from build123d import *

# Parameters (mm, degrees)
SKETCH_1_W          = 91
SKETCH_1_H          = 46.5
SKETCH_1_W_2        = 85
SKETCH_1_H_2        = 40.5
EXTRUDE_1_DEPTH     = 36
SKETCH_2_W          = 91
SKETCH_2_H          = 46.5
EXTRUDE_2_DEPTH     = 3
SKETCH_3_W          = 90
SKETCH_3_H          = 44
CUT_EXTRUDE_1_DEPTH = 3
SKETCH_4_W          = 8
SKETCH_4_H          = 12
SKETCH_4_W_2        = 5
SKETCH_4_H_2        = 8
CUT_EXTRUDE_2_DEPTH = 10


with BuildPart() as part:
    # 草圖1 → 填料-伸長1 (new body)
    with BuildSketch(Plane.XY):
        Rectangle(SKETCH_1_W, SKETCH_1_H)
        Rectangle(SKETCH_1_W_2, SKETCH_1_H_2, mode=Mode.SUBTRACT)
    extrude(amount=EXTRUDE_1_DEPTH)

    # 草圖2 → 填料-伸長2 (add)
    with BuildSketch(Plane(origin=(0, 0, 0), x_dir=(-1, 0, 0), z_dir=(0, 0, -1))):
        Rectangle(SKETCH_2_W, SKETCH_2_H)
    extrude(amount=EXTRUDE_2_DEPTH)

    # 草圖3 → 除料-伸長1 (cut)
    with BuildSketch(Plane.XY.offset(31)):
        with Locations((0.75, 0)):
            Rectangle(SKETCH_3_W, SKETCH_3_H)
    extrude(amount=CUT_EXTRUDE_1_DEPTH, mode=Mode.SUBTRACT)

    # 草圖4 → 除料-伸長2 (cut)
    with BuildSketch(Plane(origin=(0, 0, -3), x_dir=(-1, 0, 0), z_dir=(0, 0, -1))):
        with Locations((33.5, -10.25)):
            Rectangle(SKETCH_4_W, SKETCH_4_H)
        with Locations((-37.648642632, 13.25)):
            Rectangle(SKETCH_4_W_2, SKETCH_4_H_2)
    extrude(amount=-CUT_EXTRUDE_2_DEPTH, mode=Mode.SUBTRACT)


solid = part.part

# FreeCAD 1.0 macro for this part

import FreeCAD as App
import Part
import Sketcher

V = App.Vector
Q = App.Units.Quantity

doc = App.newDocument("Part")
params = doc.addObject("Spreadsheet::Sheet", "Params")
for row, (alias, value) in enumerate([
    ("sketch1_width", "91 mm"),
    ("sketch1_width2", "85 mm"),
    ("sketch1_height", "46.5 mm"),
    ("sketch1_height2", "40.5 mm"),
    ("pad1_length", "36 mm"),
    ("sketch2_width", "91 mm"),
    ("sketch2_height", "46.5 mm"),
    ("pad2_length", "3 mm"),
    ("sketch3_width", "90 mm"),
    ("sketch3_height", "44 mm"),
    ("pocket1_length", "3 mm"),
    ("sketch4_width", "8 mm"),
    ("sketch4_width2", "5 mm"),
    ("sketch4_height", "12 mm"),
    ("pocket2_length", "10 mm"),
], start=1):
    params.set(f"A{row}", alias)
    params.set(f"B{row}", "=" + value)
    params.setAlias(f"B{row}", alias)

body = doc.addObject("PartDesign::Body", "Body")

# Sketch on XY plane
sketch1 = body.newObject("Sketcher::SketchObject", "Sketch")
sketch1.AttachmentSupport = (doc.getObject("XY_Plane"), [""])
sketch1.MapMode = "FlatFace"
sketch1.addGeometry([
    Part.LineSegment(V(-46, 23, 0), V(-46, -23, 0)),  # 0
    Part.LineSegment(V(-46, -23, 0), V(46, -23, 0)),  # 1
    Part.LineSegment(V(46, -23, 0), V(46, 23, 0)),  # 2
    Part.LineSegment(V(46, 23, 0), V(-46, 23, 0)),  # 3
    Part.LineSegment(V(42, -20, 0), V(-42, -20, 0)),  # 4
    Part.LineSegment(V(-42, -20, 0), V(-42, 20, 0)),  # 5
    Part.LineSegment(V(-42, 20, 0), V(42, 20, 0)),  # 6
    Part.LineSegment(V(42, 20, 0), V(42, -20, 0)),  # 7
], False)
sketch1.addConstraint([
    Sketcher.Constraint("Coincident", 0, 2, 1, 1),
    Sketcher.Constraint("Coincident", 1, 2, 2, 1),
    Sketcher.Constraint("Coincident", 2, 2, 3, 1),
    Sketcher.Constraint("Coincident", 3, 2, 0, 1),
    Sketcher.Constraint("Coincident", 4, 2, 5, 1),
    Sketcher.Constraint("Coincident", 5, 2, 6, 1),
    Sketcher.Constraint("Coincident", 6, 2, 7, 1),
    Sketcher.Constraint("Coincident", 7, 2, 4, 1),
    Sketcher.Constraint("Vertical", 0),
    Sketcher.Constraint("Horizontal", 1),
    Sketcher.Constraint("Vertical", 2),
    Sketcher.Constraint("Horizontal", 3),
    Sketcher.Constraint("Horizontal", 4),
    Sketcher.Constraint("Vertical", 5),
    Sketcher.Constraint("Horizontal", 6),
    Sketcher.Constraint("Vertical", 7),
    Sketcher.Constraint("Symmetric", 0, 2, 2, 2, -1, 1),
    Sketcher.Constraint("Symmetric", 4, 2, 6, 2, -1, 1),
    Sketcher.Constraint("DistanceX", 1, 1, 1, 2, Q("91 mm")),
    Sketcher.Constraint("DistanceX", 4, 2, 4, 1, Q("85 mm")),
    Sketcher.Constraint("DistanceY", 0, 2, 0, 1, Q("46.5 mm")),
    Sketcher.Constraint("DistanceY", 5, 1, 5, 2, Q("40.5 mm")),
])
sketch1.setExpression("Constraints[18]", "Params.sketch1_width")
sketch1.setExpression("Constraints[19]", "Params.sketch1_width2")
sketch1.setExpression("Constraints[20]", "Params.sketch1_height")
sketch1.setExpression("Constraints[21]", "Params.sketch1_height2")
pad1 = body.newObject("PartDesign::Pad", "Pad")
pad1.Profile = sketch1
pad1.setExpression("Length", "Params.pad1_length")

# Sketch on XY plane
sketch2 = body.newObject("Sketcher::SketchObject", "Sketch001")
sketch2.AttachmentSupport = (doc.getObject("XY_Plane"), [""])
sketch2.MapMode = "FlatFace"
sketch2.addGeometry([
    Part.LineSegment(V(46, 23, 0), V(46, -23, 0)),
    Part.LineSegment(V(46, -23, 0), V(-46, -23, 0)),
    Part.LineSegment(V(-46, -23, 0), V(-46, 23, 0)),
    Part.LineSegment(V(-46, 23, 0), V(46, 23, 0)),
], False)
sketch2.addConstraint([
    Sketcher.Constraint("Coincident", 0, 2, 1, 1),
    Sketcher.Constraint("Coincident", 1, 2, 2, 1),
    Sketcher.Constraint("Coincident", 2, 2, 3, 1),
    Sketcher.Constraint("Coincident", 3, 2, 0, 1),
    Sketcher.Constraint("Vertical", 0),
    Sketcher.Constraint("Horizontal", 1),
    Sketcher.Constraint("Vertical", 2),
    Sketcher.Constraint("Horizontal", 3),
    Sketcher.Constraint("Symmetric", 0, 2, 2, 2, -1, 1),
    Sketcher.Constraint("DistanceX", 1, 2, 1, 1, Q("91 mm")),
    Sketcher.Constraint("DistanceY", 0, 2, 0, 1, Q("46.5 mm")),
])
sketch2.setExpression("Constraints[9]", "Params.sketch2_width")
sketch2.setExpression("Constraints[10]", "Params.sketch2_height")
pad2 = body.newObject("PartDesign::Pad", "Pad001")
pad2.Profile = sketch2
pad2.setExpression("Length", "Params.pad2_length")
pad2.Reversed = True

# Sketch on XY plane
sketch3 = body.newObject("Sketcher::SketchObject", "Sketch002")
sketch3.AttachmentSupport = (doc.getObject("XY_Plane"), [""])
sketch3.MapMode = "FlatFace"
sketch3.AttachmentOffset = App.Placement(V(0, 0, 31), App.Rotation())
sketch3.addGeometry([
    Part.LineSegment(V(-44, 22, 0), V(-44, -22, 0)),
    Part.LineSegment(V(-44, -22, 0), V(46, -22, 0)),
    Part.LineSegment(V(46, -22, 0), V(46, 22, 0)),
    Part.LineSegment(V(46, 22, 0), V(-44, 22, 0)),
], False)
sketch3.addConstraint([
    Sketcher.Constraint("Coincident", 0, 2, 1, 1),
    Sketcher.Constraint("Coincident", 1, 2, 2, 1),
    Sketcher.Constraint("Coincident", 2, 2, 3, 1),
    Sketcher.Constraint("Coincident", 3, 2, 0, 1),
    Sketcher.Constraint("Vertical", 0),
    Sketcher.Constraint("Horizontal", 1),
    Sketcher.Constraint("Vertical", 2),
    Sketcher.Constraint("Horizontal", 3),
    Sketcher.Constraint("DistanceX", 1, 1, 1, 2, Q("90 mm")),
    Sketcher.Constraint("DistanceY", 0, 2, 0, 1, Q("44 mm")),
    Sketcher.Constraint("DistanceY", 0, 2, -1, 1, Q("22 mm")),
    Sketcher.Constraint("DistanceX", 0, 2, -1, 1, Q("44.25 mm")),
])
sketch3.setExpression("Constraints[8]", "Params.sketch3_width")
sketch3.setExpression("Constraints[9]", "Params.sketch3_height")
pocket1 = body.newObject("PartDesign::Pocket", "Pocket")
pocket1.Profile = sketch3
pocket1.setExpression("Length", "Params.pocket1_length")
pocket1.Reversed = True

# Sketch on XY plane
sketch4 = body.newObject("Sketcher::SketchObject", "Sketch003")
sketch4.AttachmentSupport = (doc.getObject("XY_Plane"), [""])
sketch4.MapMode = "FlatFace"
sketch4.AttachmentOffset = App.Placement(V(0, 0, -3), App.Rotation())
sketch4.addGeometry([
    Part.LineSegment(V(-30, -4, 0), V(-30, -16, 0)),  # 0
    Part.LineSegment(V(-30, -16, 0), V(-38, -16, 0)),  # 1
    Part.LineSegment(V(-38, -16, 0), V(-38, -4, 0)),  # 2
    Part.LineSegment(V(-38, -4, 0), V(-30, -4, 0)),  # 3
    Part.LineSegment(V(40, 17, 0), V(40, 9, 0)),  # 4
    Part.LineSegment(V(40, 9, 0), V(35, 9, 0)),  # 5
    Part.LineSegment(V(35, 9, 0), V(35, 17, 0)),  # 6
    Part.LineSegment(V(35, 17, 0), V(40, 17, 0)),  # 7
], False)
sketch4.addConstraint([
    Sketcher.Constraint("Coincident", 0, 2, 1, 1),
    Sketcher.Constraint("Coincident", 1, 2, 2, 1),
    Sketcher.Constraint("Coincident", 2, 2, 3, 1),
    Sketcher.Constraint("Coincident", 3, 2, 0, 1),
    Sketcher.Constraint("Coincident", 4, 2, 5, 1),
    Sketcher.Constraint("Coincident", 5, 2, 6, 1),
    Sketcher.Constraint("Coincident", 6, 2, 7, 1),
    Sketcher.Constraint("Coincident", 7, 2, 4, 1),
    Sketcher.Constraint("Vertical", 0),
    Sketcher.Constraint("Horizontal", 1),
    Sketcher.Constraint("Vertical", 2),
    Sketcher.Constraint("Horizontal", 3),
    Sketcher.Constraint("Vertical", 4),
    Sketcher.Constraint("Horizontal", 5),
    Sketcher.Constraint("Vertical", 6),
    Sketcher.Constraint("Horizontal", 7),
    Sketcher.Constraint("Equal", 3, 4),
    Sketcher.Constraint("DistanceX", 1, 2, 1, 1, Q("8 mm")),
    Sketcher.Constraint("DistanceX", 5, 2, 5, 1, Q("5 mm")),
    Sketcher.Constraint("DistanceY", 0, 2, 0, 1, Q("12 mm")),
    Sketcher.Constraint("DistanceX", 0, 2, -1, 1, Q("29.5 mm")),
    Sketcher.Constraint("DistanceY", 3, 2, 4, 2, Q("13.5 mm")),
    Sketcher.Constraint("DistanceY", 0, 2, -1, 1, Q("16.25 mm")),
    Sketcher.Constraint("DistanceX", -1, 1, 4, 2, Q("40.148643 mm")),
])
sketch4.setExpression("Constraints[17]", "Params.sketch4_width")
sketch4.setExpression("Constraints[18]", "Params.sketch4_width2")
sketch4.setExpression("Constraints[19]", "Params.sketch4_height")
pocket2 = body.newObject("PartDesign::Pocket", "Pocket001")
pocket2.Profile = sketch4
pocket2.setExpression("Length", "Params.pocket2_length")
pocket2.Reversed = True

doc.recompute()
